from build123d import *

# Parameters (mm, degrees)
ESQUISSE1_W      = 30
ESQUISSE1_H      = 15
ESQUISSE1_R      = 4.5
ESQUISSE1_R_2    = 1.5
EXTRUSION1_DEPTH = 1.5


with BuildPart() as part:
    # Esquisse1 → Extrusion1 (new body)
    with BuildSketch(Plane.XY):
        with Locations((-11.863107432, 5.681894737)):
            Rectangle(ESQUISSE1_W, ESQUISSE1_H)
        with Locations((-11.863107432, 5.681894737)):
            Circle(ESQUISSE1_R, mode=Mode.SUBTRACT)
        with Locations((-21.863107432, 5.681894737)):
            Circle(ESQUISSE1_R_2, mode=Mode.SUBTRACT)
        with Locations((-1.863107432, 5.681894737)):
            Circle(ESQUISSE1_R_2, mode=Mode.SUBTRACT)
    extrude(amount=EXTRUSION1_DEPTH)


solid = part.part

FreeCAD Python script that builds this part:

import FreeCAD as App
import Part
import Sketcher
Q = App.Units.Quantity

doc = App.newDocument("Part")
body = doc.addObject("PartDesign::Body", "Body")

sketch1 = body.newObject("Sketcher::SketchObject", "Sketch")
sketch1.AttachmentSupport = (doc.getObject("XY_Plane"), [""])
sketch1.MapMode = "FlatFace"
sketch1.addGeometry([
    Part.LineSegment(App.Vector(-26.9, 13.2, 0), App.Vector(-26.9, -1.8, 0)),
    Part.LineSegment(App.Vector(-26.9, -1.8, 0), App.Vector(3.1, -1.8, 0)),
    Part.LineSegment(App.Vector(3.1, -1.8, 0), App.Vector(3.1, 13.2, 0)),
    Part.LineSegment(App.Vector(3.1, 13.2, 0), App.Vector(-26.9, 13.2, 0)),
    Part.Circle(App.Vector(-21.9, 5.7, 0), App.Vector(0, 0, 1), 1.5),
    Part.Circle(App.Vector(-11.9, 5.7, 0), App.Vector(0, 0, 1), 4.5),
    Part.Circle(App.Vector(-1.9, 5.7, 0), App.Vector(0, 0, 1), 1.5),
], False)
sketch1.addConstraint([
    Sketcher.Constraint("Coincident", 0, 2, 1, 1),
    Sketcher.Constraint("Coincident", 1, 2, 2, 1),
    Sketcher.Constraint("Coincident", 2, 2, 3, 1),
    Sketcher.Constraint("Coincident", 3, 2, 0, 1),
    Sketcher.Constraint("Vertical", 0),
    Sketcher.Constraint("Horizontal", 1),
    Sketcher.Constraint("Vertical", 2),
    Sketcher.Constraint("Horizontal", 3),
    Sketcher.Constraint("Equal", 4, 6),
    Sketcher.Constraint("Horizontal", 4, 3, 5, 3),
    Sketcher.Constraint("Horizontal", 5, 3, 6, 3),
    Sketcher.Constraint("Diameter", 4, Q("3 mm")),
    Sketcher.Constraint("Diameter", 5, Q("9 mm")),
    Sketcher.Constraint("DistanceX", 1, 1, 1, 2, Q("30 mm")),
    Sketcher.Constraint("DistanceY", 0, 2, 0, 1, Q("15 mm")),
    Sketcher.Constraint("DistanceX", 4, 3, 5, 3, Q("10 mm")),
    Sketcher.Constraint("DistanceX", 5, 3, 6, 3, Q("10 mm")),
    Sketcher.Constraint("DistanceX", 0, 2, 4, 3, Q("5 mm")),
    Sketcher.Constraint("DistanceY", 0, 2, 4, 3, Q("7.5 mm")),
    Sketcher.Constraint("DistanceX", 4, 3, -1, 1, Q("21.863107 mm")),
    Sketcher.Constraint("DistanceY", -1, 1, 4, 3, Q("5.681895 mm")),
])
pad1 = body.newObject("PartDesign::Pad", "Pad")
pad1.Profile = sketch1
pad1.Length = 1.5

doc.recompute()
